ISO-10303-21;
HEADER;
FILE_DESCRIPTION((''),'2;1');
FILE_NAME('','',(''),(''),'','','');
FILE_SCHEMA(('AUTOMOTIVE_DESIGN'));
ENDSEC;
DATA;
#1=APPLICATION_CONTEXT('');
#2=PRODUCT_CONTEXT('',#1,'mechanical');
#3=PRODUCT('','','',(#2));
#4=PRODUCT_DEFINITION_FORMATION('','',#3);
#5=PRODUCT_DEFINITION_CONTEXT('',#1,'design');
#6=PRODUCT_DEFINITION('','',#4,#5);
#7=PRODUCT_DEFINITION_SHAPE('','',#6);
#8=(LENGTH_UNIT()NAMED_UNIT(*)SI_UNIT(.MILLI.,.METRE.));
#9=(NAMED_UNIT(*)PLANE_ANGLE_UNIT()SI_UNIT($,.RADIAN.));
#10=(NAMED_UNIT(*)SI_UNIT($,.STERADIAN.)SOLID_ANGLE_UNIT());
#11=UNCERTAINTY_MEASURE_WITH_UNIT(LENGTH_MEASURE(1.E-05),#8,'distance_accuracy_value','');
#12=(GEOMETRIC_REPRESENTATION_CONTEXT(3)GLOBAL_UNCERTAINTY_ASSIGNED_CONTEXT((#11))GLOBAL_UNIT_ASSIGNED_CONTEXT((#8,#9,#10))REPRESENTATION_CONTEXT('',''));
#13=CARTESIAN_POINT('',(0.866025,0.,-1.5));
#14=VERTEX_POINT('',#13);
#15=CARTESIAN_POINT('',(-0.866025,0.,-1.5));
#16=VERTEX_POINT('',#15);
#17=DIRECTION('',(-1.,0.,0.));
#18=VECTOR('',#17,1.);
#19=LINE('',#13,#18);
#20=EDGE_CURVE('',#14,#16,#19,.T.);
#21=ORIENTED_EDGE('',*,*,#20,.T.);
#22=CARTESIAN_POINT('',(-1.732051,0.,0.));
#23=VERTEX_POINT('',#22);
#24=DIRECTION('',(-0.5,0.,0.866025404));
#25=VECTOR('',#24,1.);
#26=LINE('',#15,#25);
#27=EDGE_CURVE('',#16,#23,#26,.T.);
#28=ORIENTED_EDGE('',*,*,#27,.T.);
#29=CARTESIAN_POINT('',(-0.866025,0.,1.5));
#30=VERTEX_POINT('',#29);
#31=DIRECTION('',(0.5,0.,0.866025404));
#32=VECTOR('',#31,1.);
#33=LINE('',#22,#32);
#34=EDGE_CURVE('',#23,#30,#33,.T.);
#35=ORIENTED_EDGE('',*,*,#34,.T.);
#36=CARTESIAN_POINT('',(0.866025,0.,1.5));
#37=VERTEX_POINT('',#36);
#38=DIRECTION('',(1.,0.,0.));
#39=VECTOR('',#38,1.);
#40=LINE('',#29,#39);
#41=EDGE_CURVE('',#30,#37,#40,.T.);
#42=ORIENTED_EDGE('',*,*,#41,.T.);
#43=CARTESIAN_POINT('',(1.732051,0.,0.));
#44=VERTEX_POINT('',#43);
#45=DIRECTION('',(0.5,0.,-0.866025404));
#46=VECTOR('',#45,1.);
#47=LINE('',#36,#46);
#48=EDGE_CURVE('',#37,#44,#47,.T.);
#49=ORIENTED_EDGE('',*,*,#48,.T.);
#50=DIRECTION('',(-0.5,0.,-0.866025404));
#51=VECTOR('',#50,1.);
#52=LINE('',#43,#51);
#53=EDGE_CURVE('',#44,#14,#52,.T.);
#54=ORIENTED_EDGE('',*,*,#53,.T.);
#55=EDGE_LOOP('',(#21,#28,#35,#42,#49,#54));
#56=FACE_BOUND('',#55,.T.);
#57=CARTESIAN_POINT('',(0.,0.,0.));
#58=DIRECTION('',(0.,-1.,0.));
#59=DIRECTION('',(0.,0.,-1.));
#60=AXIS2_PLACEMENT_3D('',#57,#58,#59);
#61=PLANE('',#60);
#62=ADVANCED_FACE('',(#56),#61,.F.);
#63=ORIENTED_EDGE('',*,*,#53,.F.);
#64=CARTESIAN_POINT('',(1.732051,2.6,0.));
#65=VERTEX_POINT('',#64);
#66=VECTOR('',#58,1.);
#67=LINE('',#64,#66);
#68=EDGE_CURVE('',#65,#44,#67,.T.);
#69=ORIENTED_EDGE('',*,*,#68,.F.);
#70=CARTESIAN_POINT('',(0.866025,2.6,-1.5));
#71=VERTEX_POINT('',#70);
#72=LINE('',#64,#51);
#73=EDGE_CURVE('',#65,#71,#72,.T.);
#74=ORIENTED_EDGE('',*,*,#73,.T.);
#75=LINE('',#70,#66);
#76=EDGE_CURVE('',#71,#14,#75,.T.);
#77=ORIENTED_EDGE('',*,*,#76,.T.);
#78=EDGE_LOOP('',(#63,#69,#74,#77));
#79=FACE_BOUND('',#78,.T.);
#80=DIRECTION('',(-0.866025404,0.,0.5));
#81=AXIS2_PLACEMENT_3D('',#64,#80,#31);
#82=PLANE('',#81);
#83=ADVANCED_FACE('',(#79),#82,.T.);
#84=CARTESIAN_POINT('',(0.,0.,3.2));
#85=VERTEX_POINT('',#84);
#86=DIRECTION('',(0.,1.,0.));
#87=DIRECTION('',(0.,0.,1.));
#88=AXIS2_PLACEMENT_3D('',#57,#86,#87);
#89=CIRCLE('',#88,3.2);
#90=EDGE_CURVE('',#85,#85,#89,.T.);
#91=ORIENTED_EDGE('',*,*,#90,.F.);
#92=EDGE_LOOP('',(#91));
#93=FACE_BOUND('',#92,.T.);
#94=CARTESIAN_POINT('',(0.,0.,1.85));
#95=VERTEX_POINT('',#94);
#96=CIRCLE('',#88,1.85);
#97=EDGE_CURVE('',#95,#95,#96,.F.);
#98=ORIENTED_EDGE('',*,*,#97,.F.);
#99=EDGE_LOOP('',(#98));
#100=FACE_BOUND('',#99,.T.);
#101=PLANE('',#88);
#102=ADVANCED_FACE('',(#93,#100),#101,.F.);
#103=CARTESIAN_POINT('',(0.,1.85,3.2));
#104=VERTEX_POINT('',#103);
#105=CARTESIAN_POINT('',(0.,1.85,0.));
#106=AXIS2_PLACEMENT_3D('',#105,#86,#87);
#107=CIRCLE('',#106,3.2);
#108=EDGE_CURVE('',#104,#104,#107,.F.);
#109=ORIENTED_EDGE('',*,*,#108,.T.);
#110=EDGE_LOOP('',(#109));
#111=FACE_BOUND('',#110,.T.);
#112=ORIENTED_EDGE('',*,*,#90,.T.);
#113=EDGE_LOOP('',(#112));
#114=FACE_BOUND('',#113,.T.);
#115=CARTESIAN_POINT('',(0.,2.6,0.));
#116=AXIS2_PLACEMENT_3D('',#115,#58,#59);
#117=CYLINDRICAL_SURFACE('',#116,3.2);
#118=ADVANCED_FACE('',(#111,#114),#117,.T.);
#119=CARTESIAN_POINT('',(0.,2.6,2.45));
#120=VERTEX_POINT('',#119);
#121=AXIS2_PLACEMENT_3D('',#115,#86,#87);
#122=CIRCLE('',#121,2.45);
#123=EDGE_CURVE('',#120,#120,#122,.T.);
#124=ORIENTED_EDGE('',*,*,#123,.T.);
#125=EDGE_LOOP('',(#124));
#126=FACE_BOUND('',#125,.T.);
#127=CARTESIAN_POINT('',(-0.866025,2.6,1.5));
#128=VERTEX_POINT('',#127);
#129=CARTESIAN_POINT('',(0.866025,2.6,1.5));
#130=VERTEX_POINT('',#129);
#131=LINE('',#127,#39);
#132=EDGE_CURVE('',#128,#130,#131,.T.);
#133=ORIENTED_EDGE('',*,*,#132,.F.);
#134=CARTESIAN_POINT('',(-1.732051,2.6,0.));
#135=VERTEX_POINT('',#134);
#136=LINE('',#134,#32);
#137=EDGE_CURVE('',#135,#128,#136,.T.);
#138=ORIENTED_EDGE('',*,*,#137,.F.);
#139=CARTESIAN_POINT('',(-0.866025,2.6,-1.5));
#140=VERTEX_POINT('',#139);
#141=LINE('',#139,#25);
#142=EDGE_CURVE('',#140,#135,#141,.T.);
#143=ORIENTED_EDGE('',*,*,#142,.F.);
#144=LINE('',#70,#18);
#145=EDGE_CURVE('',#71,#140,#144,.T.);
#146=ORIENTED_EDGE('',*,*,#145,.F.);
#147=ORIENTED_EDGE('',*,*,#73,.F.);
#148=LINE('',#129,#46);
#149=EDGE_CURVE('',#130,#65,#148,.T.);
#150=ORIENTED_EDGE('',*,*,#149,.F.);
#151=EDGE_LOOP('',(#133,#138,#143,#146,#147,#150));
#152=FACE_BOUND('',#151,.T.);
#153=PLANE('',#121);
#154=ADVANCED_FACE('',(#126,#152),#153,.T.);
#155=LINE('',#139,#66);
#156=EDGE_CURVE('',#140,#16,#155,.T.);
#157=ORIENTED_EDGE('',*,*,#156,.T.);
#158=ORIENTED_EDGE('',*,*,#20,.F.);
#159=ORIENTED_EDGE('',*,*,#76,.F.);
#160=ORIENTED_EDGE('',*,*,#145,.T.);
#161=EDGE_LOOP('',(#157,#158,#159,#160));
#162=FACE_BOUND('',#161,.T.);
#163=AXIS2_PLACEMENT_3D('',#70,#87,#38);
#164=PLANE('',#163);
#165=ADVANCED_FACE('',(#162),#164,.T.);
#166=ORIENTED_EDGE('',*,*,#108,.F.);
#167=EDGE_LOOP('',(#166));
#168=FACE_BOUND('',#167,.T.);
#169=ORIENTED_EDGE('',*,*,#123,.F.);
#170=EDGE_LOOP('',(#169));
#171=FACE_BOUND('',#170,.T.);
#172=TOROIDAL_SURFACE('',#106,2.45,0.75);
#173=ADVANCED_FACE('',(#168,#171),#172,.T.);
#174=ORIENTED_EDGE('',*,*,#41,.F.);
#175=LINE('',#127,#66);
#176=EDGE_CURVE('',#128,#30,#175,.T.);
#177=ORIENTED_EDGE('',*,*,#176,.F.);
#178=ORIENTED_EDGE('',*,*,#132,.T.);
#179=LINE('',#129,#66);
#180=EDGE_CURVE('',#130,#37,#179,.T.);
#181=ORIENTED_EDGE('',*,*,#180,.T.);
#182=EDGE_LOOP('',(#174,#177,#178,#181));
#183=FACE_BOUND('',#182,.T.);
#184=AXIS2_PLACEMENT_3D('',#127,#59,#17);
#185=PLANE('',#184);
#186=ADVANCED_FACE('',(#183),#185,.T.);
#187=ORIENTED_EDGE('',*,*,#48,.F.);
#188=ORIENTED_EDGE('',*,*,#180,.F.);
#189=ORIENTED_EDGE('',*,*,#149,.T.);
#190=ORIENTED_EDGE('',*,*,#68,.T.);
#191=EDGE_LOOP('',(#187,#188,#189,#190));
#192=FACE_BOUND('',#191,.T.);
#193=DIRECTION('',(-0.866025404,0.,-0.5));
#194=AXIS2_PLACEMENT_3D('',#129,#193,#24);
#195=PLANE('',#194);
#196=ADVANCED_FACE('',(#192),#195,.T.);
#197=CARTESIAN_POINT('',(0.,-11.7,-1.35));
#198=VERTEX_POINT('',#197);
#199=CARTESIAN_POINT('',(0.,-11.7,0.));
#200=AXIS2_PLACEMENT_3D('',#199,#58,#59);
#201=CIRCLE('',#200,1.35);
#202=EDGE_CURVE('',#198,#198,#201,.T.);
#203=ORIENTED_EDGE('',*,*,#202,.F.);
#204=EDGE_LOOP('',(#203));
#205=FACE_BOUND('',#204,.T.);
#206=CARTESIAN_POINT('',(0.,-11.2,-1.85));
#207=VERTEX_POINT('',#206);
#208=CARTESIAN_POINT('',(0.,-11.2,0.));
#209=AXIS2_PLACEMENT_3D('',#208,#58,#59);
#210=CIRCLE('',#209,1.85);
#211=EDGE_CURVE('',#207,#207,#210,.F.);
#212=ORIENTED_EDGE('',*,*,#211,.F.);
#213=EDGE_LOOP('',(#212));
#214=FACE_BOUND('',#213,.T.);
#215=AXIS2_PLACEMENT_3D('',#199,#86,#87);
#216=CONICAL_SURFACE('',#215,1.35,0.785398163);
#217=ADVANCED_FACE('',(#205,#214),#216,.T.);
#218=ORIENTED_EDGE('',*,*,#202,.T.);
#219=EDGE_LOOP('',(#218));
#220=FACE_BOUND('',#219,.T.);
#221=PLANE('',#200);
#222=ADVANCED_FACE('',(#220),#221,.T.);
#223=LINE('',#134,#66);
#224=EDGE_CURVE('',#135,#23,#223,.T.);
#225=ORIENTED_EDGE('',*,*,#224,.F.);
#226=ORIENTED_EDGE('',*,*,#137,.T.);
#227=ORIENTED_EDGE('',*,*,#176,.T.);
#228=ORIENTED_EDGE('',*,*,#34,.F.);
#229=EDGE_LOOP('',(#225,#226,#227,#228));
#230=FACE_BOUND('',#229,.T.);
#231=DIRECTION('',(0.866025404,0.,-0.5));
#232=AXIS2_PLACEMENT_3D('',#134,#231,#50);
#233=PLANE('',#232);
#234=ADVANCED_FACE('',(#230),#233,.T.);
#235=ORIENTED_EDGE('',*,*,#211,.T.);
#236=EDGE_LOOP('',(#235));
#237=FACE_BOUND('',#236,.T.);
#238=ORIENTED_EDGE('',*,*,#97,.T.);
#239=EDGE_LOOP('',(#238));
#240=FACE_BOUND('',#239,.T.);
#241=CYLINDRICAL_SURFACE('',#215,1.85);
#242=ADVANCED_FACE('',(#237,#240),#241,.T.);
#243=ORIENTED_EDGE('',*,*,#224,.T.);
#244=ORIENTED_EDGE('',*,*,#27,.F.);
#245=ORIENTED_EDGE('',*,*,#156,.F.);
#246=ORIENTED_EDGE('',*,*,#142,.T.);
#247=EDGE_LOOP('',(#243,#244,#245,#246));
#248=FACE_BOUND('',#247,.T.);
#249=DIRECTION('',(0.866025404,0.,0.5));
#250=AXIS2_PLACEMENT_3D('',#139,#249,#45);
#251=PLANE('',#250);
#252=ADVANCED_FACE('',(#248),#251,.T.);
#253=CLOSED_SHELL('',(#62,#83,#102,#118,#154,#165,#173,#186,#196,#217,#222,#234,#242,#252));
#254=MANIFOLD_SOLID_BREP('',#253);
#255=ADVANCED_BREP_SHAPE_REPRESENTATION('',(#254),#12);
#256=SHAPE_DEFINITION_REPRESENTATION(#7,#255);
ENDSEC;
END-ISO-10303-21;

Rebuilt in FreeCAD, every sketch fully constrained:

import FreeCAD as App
import Part
import Sketcher

V = App.Vector
Q = App.Units.Quantity


def edges_at(feature, points):
    """Names of the edges that pass closest to the given points."""
    edges = feature.Shape.Edges
    near = lambda p: min(range(len(edges)), key=lambda i: edges[i].distToShape(Part.Vertex(*p))[0])
    return sorted({f"Edge{near(p) + 1}" for p in points})

doc = App.newDocument("Part")
body = doc.addObject("PartDesign::Body", "Body")

# Sketch on XZ plane
sketch1 = body.newObject("Sketcher::SketchObject", "Sketch")
sketch1.AttachmentSupport = (doc.getObject("XZ_Plane"), [""])
sketch1.MapMode = "FlatFace"
sketch1.addGeometry([
    Part.Circle(V(0, 0, 0), V(0, 0, 1), 3.2),  # 0
    Part.LineSegment(V(0.9, -1.5, 0), V(1.7, 0, 0)),  # 1
    Part.LineSegment(V(1.7, 0, 0), V(0.9, 1.5, 0)),  # 2
    Part.LineSegment(V(0.9, 1.5, 0), V(-0.9, 1.5, 0)),  # 3
    Part.LineSegment(V(-0.9, 1.5, 0), V(-1.7, 0, 0)),  # 4
    Part.LineSegment(V(-1.7, 0, 0), V(-0.9, -1.5, 0)),  # 5
    Part.LineSegment(V(-0.9, -1.5, 0), V(0.9, -1.5, 0)),  # 6
], False)
sketch1.addConstraint([
    Sketcher.Constraint("Coincident", 1, 2, 2, 1),
    Sketcher.Constraint("Coincident", 2, 2, 3, 1),
    Sketcher.Constraint("Coincident", 3, 2, 4, 1),
    Sketcher.Constraint("Coincident", 4, 2, 5, 1),
    Sketcher.Constraint("Coincident", 5, 2, 6, 1),
    Sketcher.Constraint("Coincident", 6, 2, 1, 1),
    Sketcher.Constraint("Horizontal", 3),
    Sketcher.Constraint("Horizontal", 6),
    Sketcher.Constraint("Coincident", 0, 3, -1, 1),
    Sketcher.Constraint("Symmetric", 1, 2, 4, 2, -1, 1),
    Sketcher.Constraint("Symmetric", 2, 2, 5, 2, -1, 1),
    Sketcher.Constraint("PointOnObject", 1, 2, -1),
    Sketcher.Constraint("Parallel", 1, 4),
    Sketcher.Constraint("Vertical", 3, 2, 5, 2),
    Sketcher.Constraint("Diameter", 0, Q("6.4 mm")),
    Sketcher.Constraint("Angle", 1, Q("60 deg")),
    Sketcher.Constraint("DistanceY", 5, 2, 3, 2, Q("3 mm")),
    Sketcher.Constraint("DistanceX", 3, 2, 3, 1, Q("1.732051 mm")),
])
pad1 = body.newObject("PartDesign::Pad", "Pad")
pad1.Profile = sketch1
pad1.Length = 2.6
pad1.Reversed = True
doc.recompute()

fillet = body.newObject("PartDesign::Fillet", "Fillet")
fillet.Base = (pad1, edges_at(pad1, [(0, 2.6, -3.2)]))
fillet.Radius = 0.75

# Sketch on XZ plane
sketch2 = body.newObject("Sketcher::SketchObject", "Sketch001")
sketch2.AttachmentSupport = (doc.getObject("XZ_Plane"), [""])
sketch2.MapMode = "FlatFace"
sketch2.addGeometry(Part.Circle(V(0, 0, 0), V(0, 0, 1), 1.9), False)
sketch2.addConstraint([
    Sketcher.Constraint("Coincident", 0, 3, -1, 1),
    Sketcher.Constraint("Diameter", 0, Q("3.7 mm")),
])
pad2 = body.newObject("PartDesign::Pad", "Pad001")
pad2.Profile = sketch2
pad2.Length = 11.7
doc.recompute()

chamfer = body.newObject("PartDesign::Chamfer", "Chamfer")
chamfer.Base = (pad2, edges_at(pad2, [(0, -11.7, -1.85)]))
chamfer.Size = 0.5

doc.recompute()
